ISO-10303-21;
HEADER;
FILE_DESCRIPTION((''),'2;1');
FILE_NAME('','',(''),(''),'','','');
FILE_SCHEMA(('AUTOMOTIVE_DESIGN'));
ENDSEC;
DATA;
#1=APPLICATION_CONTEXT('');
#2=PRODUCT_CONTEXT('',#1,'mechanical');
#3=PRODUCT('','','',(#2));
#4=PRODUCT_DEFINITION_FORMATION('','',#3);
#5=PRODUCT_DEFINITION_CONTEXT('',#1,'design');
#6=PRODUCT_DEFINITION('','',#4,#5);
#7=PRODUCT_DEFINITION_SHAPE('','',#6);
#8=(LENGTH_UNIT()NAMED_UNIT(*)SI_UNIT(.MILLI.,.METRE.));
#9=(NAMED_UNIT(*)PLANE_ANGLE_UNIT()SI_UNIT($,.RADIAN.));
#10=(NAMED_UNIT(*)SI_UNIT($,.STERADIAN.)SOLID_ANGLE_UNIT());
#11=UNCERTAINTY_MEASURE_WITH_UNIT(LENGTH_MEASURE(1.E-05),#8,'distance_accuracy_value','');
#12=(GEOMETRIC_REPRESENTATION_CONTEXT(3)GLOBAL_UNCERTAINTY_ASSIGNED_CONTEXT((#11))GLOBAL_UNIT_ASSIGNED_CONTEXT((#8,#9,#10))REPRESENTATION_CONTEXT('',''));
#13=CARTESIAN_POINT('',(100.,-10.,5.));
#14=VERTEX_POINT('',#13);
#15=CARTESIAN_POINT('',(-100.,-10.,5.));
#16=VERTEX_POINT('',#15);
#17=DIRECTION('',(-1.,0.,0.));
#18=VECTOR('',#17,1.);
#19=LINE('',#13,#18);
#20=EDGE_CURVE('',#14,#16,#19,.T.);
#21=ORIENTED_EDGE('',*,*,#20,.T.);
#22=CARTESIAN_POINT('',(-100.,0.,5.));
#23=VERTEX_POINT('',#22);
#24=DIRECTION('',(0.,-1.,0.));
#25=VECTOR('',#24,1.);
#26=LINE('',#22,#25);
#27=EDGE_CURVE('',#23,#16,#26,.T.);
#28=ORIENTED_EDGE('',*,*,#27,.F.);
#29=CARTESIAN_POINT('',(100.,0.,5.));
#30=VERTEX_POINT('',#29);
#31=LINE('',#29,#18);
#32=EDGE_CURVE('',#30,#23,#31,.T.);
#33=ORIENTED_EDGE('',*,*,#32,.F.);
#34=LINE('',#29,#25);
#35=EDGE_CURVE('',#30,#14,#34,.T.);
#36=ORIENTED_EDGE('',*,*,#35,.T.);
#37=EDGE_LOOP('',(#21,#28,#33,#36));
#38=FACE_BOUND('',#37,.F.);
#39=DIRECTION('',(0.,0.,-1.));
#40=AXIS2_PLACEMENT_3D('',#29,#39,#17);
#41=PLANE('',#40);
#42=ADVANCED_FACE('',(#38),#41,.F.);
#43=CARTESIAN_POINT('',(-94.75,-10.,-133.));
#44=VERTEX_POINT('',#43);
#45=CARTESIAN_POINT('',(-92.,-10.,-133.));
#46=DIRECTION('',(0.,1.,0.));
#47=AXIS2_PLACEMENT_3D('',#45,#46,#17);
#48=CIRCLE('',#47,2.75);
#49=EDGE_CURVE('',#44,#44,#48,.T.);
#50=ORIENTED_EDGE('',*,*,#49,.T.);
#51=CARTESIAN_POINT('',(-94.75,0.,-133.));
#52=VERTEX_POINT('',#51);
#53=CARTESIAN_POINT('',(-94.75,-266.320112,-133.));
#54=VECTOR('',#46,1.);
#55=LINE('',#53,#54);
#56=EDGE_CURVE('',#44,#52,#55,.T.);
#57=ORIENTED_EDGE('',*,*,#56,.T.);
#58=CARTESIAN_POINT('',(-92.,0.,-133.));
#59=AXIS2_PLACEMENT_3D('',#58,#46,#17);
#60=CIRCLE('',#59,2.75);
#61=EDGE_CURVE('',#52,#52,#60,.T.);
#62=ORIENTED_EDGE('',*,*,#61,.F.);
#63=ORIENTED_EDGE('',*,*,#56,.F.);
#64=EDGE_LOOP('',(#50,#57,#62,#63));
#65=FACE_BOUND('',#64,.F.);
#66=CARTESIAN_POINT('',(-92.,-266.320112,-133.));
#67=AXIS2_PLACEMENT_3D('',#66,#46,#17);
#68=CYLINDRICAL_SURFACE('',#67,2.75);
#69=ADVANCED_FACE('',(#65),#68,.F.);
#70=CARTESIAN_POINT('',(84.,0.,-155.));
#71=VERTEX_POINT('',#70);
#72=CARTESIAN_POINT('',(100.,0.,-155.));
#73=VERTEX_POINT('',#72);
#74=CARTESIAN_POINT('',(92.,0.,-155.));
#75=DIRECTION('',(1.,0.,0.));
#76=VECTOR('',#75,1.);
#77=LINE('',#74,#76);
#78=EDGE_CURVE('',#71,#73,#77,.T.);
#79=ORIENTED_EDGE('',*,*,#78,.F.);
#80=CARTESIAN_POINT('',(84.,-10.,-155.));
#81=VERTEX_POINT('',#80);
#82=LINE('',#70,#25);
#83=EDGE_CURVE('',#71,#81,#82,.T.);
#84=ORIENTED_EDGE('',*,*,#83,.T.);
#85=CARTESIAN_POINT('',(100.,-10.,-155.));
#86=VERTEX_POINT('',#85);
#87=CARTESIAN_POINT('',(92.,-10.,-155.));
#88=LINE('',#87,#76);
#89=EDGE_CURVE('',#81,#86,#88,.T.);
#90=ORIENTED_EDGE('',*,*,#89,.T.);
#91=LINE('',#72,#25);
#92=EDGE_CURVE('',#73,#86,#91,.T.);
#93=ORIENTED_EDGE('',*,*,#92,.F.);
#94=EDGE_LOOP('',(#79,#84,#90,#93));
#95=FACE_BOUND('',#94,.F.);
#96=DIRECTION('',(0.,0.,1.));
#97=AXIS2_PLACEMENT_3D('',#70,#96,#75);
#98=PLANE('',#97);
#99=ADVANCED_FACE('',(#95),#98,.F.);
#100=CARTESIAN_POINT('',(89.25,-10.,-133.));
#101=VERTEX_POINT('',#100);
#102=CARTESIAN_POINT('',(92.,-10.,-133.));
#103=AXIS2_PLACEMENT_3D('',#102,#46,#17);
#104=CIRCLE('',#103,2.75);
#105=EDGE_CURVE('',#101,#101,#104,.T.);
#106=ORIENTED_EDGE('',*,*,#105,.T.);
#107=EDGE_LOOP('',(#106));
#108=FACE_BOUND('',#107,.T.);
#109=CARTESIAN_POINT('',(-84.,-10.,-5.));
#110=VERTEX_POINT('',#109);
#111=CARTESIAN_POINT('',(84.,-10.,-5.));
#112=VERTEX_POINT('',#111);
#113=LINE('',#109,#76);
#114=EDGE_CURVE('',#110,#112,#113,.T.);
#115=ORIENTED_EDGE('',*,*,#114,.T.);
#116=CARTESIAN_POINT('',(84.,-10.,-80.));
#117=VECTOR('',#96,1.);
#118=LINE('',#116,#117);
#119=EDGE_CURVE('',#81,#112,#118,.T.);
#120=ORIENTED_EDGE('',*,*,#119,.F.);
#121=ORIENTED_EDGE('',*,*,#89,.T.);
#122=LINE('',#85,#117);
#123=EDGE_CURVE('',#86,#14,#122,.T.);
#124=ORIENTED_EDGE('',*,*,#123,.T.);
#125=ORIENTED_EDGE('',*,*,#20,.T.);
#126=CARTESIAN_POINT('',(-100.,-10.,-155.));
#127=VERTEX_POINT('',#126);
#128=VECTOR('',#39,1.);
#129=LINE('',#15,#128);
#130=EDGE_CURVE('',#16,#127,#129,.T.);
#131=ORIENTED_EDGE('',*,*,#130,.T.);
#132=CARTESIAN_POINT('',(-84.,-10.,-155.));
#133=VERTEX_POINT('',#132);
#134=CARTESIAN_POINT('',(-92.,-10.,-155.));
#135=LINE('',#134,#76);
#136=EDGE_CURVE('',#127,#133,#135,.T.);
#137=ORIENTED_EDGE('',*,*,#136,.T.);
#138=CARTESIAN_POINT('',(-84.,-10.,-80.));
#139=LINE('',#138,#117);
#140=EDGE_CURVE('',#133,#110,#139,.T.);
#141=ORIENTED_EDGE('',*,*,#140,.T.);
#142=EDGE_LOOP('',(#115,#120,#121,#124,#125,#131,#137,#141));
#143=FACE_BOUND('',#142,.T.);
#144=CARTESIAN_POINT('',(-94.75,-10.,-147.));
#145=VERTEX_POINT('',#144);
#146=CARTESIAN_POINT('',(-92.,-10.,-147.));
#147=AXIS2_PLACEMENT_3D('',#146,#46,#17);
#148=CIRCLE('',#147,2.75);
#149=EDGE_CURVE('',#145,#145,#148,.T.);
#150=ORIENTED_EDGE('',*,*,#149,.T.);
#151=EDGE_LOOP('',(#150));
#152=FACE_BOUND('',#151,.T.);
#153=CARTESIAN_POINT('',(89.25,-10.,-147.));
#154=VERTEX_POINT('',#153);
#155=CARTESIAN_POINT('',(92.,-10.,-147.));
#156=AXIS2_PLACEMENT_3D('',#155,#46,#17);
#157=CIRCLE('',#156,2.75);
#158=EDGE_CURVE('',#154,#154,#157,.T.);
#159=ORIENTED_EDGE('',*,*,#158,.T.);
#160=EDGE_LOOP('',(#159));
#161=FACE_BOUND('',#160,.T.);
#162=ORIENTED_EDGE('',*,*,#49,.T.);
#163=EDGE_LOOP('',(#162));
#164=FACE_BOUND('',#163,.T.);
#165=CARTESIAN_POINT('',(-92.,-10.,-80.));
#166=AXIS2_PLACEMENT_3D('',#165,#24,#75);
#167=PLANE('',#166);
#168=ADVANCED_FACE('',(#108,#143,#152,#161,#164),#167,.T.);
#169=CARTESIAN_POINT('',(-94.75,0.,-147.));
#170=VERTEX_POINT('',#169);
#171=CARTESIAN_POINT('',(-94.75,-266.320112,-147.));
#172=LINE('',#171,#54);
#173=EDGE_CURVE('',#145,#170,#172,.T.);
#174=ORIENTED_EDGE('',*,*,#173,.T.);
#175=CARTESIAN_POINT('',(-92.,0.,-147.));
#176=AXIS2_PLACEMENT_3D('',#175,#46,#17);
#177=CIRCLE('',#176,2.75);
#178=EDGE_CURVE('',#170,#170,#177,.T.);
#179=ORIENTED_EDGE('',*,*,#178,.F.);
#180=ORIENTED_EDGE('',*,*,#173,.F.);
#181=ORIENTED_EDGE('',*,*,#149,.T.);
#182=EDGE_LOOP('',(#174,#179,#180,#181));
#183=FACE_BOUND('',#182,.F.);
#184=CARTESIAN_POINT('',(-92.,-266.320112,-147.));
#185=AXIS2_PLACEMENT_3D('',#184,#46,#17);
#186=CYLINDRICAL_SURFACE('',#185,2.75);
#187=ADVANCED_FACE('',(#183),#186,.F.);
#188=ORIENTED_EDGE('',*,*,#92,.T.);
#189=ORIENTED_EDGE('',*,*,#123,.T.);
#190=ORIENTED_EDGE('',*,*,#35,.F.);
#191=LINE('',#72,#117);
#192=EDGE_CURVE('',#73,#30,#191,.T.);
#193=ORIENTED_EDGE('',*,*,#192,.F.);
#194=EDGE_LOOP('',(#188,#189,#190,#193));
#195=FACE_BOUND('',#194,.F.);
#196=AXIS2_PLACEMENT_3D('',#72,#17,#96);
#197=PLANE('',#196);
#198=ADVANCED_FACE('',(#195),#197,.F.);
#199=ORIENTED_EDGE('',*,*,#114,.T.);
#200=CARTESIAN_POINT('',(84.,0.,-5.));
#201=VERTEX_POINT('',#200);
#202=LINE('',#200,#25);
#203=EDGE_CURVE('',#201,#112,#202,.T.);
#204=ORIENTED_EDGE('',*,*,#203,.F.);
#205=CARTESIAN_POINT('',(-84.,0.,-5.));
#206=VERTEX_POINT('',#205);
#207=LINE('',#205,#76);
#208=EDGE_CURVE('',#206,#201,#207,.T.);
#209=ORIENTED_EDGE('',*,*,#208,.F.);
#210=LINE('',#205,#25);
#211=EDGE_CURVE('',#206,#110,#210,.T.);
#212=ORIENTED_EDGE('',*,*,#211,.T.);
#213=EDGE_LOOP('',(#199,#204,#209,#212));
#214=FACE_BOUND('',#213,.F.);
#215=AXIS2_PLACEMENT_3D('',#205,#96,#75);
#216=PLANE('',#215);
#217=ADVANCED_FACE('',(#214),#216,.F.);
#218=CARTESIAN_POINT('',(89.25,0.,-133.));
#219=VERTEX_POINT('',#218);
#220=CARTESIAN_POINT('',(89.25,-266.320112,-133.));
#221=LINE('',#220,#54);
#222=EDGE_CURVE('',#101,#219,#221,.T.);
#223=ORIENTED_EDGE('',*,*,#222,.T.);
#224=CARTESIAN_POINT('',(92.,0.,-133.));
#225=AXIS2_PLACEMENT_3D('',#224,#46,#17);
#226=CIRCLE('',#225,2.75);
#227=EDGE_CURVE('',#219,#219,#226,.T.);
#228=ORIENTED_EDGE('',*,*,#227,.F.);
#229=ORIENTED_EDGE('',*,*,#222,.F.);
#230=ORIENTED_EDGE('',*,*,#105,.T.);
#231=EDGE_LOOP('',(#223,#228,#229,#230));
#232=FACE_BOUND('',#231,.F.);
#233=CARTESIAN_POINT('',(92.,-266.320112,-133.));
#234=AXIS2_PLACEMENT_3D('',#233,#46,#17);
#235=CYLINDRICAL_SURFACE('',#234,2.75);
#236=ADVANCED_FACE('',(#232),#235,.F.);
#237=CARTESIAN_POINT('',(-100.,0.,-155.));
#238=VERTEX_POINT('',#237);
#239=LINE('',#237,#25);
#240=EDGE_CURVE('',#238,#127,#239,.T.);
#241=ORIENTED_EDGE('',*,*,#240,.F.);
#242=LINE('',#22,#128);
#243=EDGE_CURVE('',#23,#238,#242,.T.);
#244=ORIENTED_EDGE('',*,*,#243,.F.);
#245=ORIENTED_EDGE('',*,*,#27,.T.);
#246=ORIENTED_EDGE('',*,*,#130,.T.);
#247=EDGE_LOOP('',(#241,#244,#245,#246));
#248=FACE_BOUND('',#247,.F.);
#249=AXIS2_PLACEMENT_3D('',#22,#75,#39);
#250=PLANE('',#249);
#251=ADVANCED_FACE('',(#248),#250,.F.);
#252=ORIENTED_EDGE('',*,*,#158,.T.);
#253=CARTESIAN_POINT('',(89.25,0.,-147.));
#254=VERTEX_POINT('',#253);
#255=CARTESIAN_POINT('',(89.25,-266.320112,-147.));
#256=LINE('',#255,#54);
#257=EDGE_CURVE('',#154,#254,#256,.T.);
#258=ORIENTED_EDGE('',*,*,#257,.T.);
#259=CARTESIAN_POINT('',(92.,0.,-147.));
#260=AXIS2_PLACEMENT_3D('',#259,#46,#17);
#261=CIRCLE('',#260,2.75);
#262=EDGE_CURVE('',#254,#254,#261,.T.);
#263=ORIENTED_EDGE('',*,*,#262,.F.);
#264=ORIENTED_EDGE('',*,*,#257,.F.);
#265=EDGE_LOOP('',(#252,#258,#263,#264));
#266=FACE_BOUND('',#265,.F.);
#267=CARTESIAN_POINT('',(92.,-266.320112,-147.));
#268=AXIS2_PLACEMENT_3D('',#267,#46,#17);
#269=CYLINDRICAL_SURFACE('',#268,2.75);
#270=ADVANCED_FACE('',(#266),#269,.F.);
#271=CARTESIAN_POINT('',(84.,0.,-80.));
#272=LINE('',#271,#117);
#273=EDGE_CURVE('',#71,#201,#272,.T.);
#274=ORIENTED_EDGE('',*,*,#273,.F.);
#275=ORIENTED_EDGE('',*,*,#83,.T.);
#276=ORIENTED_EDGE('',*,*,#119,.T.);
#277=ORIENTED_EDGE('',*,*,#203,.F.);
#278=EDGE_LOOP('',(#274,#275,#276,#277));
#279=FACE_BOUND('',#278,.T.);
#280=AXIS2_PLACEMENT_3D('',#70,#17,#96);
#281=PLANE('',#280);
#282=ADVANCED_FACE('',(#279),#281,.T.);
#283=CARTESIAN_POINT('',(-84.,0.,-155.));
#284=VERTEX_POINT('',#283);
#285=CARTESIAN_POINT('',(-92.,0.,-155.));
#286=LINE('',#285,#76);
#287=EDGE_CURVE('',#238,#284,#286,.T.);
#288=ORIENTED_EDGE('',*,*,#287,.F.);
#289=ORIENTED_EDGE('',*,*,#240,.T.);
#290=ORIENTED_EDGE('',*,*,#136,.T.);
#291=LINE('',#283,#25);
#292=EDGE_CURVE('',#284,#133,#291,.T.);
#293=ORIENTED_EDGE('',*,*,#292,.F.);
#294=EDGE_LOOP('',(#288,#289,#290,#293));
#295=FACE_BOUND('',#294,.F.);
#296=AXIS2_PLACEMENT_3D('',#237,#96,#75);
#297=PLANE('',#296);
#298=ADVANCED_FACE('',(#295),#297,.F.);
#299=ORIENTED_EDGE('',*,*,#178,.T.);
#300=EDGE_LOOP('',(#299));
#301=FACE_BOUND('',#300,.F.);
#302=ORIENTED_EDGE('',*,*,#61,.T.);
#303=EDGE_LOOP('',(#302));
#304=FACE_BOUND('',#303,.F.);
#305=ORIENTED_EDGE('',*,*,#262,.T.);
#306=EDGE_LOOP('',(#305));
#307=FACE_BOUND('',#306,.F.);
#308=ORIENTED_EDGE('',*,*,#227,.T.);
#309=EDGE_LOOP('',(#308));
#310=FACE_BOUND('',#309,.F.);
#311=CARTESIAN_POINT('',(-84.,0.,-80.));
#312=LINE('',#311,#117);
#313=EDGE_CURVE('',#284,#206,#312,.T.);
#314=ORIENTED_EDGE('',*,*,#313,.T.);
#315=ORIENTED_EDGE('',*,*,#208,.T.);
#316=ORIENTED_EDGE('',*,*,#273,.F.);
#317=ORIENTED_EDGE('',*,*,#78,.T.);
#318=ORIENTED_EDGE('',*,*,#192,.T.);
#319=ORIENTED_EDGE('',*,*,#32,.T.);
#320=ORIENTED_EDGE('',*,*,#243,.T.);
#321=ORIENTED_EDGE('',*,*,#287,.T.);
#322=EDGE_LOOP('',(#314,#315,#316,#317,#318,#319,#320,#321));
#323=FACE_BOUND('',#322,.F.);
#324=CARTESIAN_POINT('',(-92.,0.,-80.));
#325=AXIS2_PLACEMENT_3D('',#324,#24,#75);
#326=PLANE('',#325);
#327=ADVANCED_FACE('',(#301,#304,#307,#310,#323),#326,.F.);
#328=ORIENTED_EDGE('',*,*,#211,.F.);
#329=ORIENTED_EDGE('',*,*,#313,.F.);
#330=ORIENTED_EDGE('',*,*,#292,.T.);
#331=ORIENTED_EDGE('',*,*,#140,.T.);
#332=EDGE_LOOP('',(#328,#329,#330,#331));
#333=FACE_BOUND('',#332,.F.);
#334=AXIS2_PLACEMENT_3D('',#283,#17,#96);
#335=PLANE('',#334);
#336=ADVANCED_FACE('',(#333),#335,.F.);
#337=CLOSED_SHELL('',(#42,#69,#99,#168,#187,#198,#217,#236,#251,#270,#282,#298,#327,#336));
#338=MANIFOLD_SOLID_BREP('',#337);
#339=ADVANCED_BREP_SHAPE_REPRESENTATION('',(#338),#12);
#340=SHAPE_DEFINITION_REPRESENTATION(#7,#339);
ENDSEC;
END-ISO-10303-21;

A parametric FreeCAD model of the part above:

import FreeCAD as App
import Part
import Sketcher
from FreeCAD import Vector
Q = App.Units.Quantity


def add_polygon(sketch, points):
    """Adds a closed chain of lines whose ends are joined by coincident constraints."""
    first, n = sketch.GeometryCount, len(points)
    for a, b in zip(points, points[1:] + points[:1]):
        sketch.addGeometry(Part.LineSegment(App.Vector(*a, 0), App.Vector(*b, 0)), False)
    for i in range(n):
        sketch.addConstraint(Sketcher.Constraint("Coincident", first + i, 2, first + (i + 1) % n, 1))

doc = App.newDocument("Part")
body = doc.addObject("PartDesign::Body", "Body")

# Sketch on XZ plane
sketch1 = body.newObject("Sketcher::SketchObject", "Sketch")
sketch1.AttachmentSupport = (doc.getObject("XZ_Plane"), [""])
sketch1.MapMode = "FlatFace"
add_polygon(sketch1, [(-100, -155), (-84, -155), (-84, -5), (84, -5), (84, -155), (100, -155), (100, 5), (-100, 5)])  # lines 0-7
sketch1.addConstraint(Sketcher.Constraint("Horizontal", 0))
sketch1.addConstraint(Sketcher.Constraint("Vertical", 1))
sketch1.addConstraint(Sketcher.Constraint("Horizontal", 2))
sketch1.addConstraint(Sketcher.Constraint("Vertical", 3))
sketch1.addConstraint(Sketcher.Constraint("Horizontal", 4))
sketch1.addConstraint(Sketcher.Constraint("Vertical", 5))
sketch1.addConstraint(Sketcher.Constraint("Horizontal", 6))
sketch1.addConstraint(Sketcher.Constraint("Vertical", 7))
sketch1.addConstraint(Sketcher.Constraint("Symmetric", 0, 2, 3, 2, -2))
sketch1.addConstraint(Sketcher.Constraint("Equal", 0, 4))
sketch1.addConstraint(Sketcher.Constraint("DistanceX", 0, 1, 0, 2, Q("16 mm")))
sketch1.addConstraint(Sketcher.Constraint("DistanceX", 2, 1, 2, 2, Q("168 mm")))
sketch1.addConstraint(Sketcher.Constraint("DistanceY", 1, 1, 1, 2, Q("150 mm")))
sketch1.addConstraint(Sketcher.Constraint("DistanceY", 5, 1, 5, 2, Q("160 mm")))
sketch1.addConstraint(Sketcher.Constraint("DistanceY", 0, 2, -1, 1, Q("155 mm")))
pad1 = body.newObject("PartDesign::Pad", "Pad")
pad1.Profile = sketch1
pad1.Length = 10

# Sketch on XZ plane
sketch2 = body.newObject("Sketcher::SketchObject", "Sketch001")
sketch2.AttachmentSupport = (doc.getObject("XZ_Plane"), [""])
sketch2.MapMode = "FlatFace"
sketch2.AttachmentOffset = App.Placement(Vector(0, 0, 10), App.Rotation())
sketch2.addGeometry(Part.Circle(Vector(-92, -147, 0), Vector(0, 0, 1), 2.75), False)
sketch2.addGeometry(Part.Circle(Vector(-92, -133, 0), Vector(0, 0, 1), 2.75), False)
sketch2.addGeometry(Part.Circle(Vector(92, -133, 0), Vector(0, 0, 1), 2.75), False)
sketch2.addGeometry(Part.Circle(Vector(92, -147, 0), Vector(0, 0, 1), 2.75), False)
sketch2.addConstraint(Sketcher.Constraint("Equal", 0, 1))
sketch2.addConstraint(Sketcher.Constraint("Equal", 1, 2))
sketch2.addConstraint(Sketcher.Constraint("Equal", 2, 3))
sketch2.addConstraint(Sketcher.Constraint("Symmetric", 1, 3, 2, 3, -2))
sketch2.addConstraint(Sketcher.Constraint("Symmetric", 0, 3, 3, 3, -2))
sketch2.addConstraint(Sketcher.Constraint("Vertical", 0, 3, 1, 3))
sketch2.addConstraint(Sketcher.Constraint("Diameter", 0, Q("5.5 mm")))
sketch2.addConstraint(Sketcher.Constraint("DistanceX", 0, 3, -1, 1, Q("92 mm")))
sketch2.addConstraint(Sketcher.Constraint("DistanceY", 0, 3, -1, 1, Q("147 mm")))
sketch2.addConstraint(Sketcher.Constraint("DistanceY", 1, 3, -1, 1, Q("133 mm")))
doc.recompute()
hole = body.newObject("PartDesign::Hole", "Hole")
hole.Profile = sketch2
hole.ThreadType = "None"
hole.Diameter = 5.5
hole.DepthType = "ThroughAll"

doc.recompute()
